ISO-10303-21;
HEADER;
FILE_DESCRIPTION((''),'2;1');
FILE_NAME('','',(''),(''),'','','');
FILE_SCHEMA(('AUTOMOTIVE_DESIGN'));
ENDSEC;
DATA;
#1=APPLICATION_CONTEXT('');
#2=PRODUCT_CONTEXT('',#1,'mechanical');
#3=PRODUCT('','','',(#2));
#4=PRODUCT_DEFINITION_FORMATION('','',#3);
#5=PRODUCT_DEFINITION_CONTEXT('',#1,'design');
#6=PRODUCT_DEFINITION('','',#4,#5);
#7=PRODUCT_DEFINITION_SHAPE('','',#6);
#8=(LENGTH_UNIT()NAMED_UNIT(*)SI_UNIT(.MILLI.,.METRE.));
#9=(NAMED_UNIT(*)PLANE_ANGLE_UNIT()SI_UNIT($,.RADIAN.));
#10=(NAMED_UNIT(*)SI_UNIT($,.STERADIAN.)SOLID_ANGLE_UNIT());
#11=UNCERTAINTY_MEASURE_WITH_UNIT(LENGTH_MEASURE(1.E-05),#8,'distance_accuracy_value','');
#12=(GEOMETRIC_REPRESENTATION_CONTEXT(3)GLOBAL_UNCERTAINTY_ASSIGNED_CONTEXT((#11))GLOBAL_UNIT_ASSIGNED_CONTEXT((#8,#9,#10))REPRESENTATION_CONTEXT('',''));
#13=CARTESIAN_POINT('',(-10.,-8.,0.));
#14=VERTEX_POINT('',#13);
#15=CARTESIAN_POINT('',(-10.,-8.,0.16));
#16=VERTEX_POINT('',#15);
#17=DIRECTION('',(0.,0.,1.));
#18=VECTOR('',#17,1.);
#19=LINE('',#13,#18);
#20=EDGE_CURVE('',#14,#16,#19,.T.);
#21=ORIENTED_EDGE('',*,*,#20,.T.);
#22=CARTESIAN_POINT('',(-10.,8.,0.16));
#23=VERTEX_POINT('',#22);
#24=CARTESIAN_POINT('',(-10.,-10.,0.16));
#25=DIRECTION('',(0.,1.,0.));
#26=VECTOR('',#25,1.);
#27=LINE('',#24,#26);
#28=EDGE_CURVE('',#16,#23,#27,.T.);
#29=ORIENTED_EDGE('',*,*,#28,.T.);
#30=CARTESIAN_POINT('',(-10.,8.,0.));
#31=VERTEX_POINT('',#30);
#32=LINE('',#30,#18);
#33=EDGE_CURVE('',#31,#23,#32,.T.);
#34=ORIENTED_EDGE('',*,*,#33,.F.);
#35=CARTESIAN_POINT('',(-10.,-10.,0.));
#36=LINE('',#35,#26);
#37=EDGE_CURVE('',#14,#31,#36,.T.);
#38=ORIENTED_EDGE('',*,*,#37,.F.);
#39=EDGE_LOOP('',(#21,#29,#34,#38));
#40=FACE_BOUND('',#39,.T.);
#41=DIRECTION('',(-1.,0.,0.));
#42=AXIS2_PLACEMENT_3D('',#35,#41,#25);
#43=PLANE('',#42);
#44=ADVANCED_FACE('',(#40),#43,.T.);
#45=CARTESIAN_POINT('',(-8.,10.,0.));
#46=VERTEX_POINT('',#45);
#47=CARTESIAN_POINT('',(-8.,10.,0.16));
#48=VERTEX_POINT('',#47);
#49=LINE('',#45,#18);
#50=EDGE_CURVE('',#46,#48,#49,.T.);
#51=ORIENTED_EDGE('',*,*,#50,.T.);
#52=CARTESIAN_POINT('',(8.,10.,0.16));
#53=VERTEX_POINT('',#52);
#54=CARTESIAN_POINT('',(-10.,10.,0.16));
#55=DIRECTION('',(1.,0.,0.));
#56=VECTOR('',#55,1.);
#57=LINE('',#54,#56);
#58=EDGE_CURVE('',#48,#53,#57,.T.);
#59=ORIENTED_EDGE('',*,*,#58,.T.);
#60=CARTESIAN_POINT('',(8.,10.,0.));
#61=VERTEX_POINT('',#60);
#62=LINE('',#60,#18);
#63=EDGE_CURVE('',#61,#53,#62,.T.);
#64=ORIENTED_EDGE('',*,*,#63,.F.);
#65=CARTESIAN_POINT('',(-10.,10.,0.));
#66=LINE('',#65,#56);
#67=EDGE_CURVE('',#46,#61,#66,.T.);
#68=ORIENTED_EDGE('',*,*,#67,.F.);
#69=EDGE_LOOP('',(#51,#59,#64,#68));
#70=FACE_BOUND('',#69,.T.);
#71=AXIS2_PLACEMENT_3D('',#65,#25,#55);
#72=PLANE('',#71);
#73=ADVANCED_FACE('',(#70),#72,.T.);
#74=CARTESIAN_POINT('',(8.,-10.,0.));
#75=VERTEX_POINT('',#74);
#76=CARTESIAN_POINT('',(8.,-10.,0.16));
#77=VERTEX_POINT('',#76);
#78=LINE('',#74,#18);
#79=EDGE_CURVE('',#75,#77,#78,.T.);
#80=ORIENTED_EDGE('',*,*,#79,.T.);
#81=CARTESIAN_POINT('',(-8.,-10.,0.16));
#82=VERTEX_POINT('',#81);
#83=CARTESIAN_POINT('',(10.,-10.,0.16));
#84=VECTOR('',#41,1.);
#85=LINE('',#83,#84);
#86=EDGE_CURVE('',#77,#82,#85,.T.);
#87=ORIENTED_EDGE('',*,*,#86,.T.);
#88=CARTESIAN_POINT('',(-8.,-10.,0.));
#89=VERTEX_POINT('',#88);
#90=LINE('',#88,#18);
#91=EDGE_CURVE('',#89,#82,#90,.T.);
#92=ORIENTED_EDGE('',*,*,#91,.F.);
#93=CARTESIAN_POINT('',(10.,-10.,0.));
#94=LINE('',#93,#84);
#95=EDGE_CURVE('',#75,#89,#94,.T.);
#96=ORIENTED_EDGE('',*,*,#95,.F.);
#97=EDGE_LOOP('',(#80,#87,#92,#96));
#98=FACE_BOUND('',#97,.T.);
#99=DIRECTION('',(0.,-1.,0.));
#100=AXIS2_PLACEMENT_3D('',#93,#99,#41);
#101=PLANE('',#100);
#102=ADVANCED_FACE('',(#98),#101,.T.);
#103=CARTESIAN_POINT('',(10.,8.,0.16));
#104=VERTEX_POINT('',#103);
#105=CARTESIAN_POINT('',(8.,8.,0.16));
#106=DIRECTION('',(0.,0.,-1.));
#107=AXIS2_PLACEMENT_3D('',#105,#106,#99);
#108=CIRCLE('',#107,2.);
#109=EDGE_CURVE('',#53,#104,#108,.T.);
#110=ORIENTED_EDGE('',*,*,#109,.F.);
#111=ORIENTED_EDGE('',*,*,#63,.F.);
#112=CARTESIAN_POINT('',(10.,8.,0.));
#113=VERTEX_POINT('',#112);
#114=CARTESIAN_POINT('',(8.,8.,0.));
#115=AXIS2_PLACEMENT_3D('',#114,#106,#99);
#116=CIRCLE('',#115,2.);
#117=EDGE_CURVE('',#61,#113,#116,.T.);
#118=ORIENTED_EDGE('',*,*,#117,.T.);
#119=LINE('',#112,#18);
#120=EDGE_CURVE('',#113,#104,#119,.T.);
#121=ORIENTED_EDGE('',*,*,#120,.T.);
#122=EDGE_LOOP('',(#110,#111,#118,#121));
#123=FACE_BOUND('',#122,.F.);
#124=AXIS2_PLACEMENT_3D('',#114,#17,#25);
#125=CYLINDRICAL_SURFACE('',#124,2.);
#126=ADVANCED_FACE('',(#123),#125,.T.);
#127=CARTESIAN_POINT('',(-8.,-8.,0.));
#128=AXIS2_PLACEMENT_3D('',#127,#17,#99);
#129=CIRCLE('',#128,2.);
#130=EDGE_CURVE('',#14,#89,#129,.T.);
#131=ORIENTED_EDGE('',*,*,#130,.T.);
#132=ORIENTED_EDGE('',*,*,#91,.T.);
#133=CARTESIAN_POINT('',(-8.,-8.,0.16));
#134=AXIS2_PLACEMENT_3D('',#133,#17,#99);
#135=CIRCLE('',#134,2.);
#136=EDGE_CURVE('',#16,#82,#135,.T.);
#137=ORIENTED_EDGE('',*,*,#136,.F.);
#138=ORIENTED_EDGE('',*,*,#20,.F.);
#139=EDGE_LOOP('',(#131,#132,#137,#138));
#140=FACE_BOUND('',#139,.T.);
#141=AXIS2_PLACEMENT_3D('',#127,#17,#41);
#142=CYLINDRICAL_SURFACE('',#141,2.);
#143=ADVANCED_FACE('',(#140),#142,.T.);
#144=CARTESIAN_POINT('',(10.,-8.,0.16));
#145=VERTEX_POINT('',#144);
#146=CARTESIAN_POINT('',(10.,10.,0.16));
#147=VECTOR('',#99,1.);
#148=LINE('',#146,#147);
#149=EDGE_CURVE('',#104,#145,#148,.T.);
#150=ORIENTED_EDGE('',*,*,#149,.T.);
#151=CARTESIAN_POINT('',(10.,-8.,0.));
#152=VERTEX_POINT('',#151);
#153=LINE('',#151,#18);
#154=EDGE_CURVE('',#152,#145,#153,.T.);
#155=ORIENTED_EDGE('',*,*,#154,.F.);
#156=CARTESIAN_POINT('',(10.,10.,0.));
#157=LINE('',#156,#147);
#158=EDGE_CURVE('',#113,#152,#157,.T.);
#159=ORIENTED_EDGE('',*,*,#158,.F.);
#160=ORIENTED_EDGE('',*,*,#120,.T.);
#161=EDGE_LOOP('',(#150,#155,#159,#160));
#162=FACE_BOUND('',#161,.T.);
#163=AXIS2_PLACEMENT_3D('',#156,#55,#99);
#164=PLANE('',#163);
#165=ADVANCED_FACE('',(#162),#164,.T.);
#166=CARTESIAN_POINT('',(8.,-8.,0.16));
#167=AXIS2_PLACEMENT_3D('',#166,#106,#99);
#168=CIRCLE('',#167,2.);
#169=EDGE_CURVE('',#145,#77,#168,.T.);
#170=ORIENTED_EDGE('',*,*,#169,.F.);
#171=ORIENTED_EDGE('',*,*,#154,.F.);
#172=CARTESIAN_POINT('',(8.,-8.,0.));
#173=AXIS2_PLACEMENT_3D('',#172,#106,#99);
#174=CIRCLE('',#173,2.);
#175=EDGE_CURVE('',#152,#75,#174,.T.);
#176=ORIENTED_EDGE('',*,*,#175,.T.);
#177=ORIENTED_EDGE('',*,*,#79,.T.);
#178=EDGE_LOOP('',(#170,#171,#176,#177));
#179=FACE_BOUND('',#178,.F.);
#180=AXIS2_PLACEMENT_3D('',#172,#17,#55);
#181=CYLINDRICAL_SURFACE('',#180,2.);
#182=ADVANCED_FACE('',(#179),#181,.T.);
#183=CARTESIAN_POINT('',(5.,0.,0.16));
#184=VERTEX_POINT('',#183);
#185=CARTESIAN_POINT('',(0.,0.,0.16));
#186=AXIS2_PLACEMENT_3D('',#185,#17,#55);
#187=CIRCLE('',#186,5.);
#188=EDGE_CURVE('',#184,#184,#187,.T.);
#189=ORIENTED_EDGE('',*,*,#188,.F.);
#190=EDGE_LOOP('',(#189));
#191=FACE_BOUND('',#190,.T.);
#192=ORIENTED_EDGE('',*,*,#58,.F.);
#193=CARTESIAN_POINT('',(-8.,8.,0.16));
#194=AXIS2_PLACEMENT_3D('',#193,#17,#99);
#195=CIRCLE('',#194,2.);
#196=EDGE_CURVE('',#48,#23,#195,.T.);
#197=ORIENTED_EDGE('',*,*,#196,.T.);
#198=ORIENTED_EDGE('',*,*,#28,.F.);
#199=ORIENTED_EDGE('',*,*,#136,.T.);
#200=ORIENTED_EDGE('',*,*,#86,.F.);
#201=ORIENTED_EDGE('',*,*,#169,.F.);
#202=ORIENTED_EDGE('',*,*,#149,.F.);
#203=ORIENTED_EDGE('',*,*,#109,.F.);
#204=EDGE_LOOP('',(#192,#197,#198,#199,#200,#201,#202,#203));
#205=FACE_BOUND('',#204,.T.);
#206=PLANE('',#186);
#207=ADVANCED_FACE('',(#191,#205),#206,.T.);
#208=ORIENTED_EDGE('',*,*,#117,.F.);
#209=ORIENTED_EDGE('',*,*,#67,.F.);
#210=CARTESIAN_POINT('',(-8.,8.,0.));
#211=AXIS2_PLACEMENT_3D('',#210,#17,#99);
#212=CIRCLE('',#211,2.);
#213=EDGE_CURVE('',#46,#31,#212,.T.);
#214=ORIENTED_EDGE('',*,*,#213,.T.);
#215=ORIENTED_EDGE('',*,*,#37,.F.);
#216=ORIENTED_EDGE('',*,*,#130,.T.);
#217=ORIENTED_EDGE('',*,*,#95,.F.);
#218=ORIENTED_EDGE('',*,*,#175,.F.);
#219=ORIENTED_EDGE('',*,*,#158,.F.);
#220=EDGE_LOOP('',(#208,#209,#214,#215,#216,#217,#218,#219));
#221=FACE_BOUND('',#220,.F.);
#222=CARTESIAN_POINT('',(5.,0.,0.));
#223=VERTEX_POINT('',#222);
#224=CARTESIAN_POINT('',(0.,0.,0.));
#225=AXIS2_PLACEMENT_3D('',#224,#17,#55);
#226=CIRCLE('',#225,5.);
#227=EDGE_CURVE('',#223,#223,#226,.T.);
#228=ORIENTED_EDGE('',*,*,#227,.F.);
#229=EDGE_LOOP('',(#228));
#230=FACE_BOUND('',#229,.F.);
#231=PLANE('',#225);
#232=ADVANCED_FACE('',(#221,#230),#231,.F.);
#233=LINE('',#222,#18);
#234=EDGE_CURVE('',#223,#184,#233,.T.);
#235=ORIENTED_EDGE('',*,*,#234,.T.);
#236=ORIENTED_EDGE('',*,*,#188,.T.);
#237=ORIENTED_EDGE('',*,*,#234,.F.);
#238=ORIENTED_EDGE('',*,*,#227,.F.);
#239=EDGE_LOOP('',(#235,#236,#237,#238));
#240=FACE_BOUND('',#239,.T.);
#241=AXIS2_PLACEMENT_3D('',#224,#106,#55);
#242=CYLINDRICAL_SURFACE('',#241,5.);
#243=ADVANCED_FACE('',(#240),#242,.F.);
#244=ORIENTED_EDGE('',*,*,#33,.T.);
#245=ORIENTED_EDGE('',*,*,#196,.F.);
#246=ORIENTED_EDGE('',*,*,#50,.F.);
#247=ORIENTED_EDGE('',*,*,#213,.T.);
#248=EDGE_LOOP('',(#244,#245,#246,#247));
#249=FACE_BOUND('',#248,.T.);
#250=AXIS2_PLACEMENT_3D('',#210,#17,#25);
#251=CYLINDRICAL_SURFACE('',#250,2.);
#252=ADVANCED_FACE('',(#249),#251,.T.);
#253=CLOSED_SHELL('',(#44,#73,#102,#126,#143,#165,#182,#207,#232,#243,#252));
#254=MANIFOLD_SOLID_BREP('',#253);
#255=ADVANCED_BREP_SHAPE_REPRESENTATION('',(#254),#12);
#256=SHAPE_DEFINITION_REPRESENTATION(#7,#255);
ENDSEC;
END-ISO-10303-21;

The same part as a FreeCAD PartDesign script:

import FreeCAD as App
import Part
import Sketcher
from FreeCAD import Vector


def edges_at(feature, points):
    """Names of the edges that pass closest to the given points."""
    edges = feature.Shape.Edges
    near = lambda p: min(range(len(edges)), key=lambda i: edges[i].distToShape(Part.Vertex(*p))[0])
    return sorted({f"Edge{near(p) + 1}" for p in points})


def add_polygon(sketch, points):
    """Adds a closed chain of lines whose ends are joined by coincident constraints."""
    first, n = sketch.GeometryCount, len(points)
    for a, b in zip(points, points[1:] + points[:1]):
        sketch.addGeometry(Part.LineSegment(App.Vector(*a, 0), App.Vector(*b, 0)), False)
    for i in range(n):
        sketch.addConstraint(Sketcher.Constraint("Coincident", first + i, 2, first + (i + 1) % n, 1))

doc = App.newDocument("Part")
body = doc.addObject("PartDesign::Body", "Body")

# Sketch on XY plane
sketch1 = body.newObject("Sketcher::SketchObject", "Sketch")
sketch1.AttachmentSupport = (doc.getObject("XY_Plane"), [""])
sketch1.MapMode = "FlatFace"
add_polygon(sketch1, [(10, 10), (-10, 10), (-10, -10), (10, -10)])  # lines 0-3
sketch1.addConstraint([
    Sketcher.Constraint("Horizontal", 0),
    Sketcher.Constraint("Vertical", 1),
    Sketcher.Constraint("Horizontal", 2),
    Sketcher.Constraint("Vertical", 3),
    Sketcher.Constraint("Symmetric", 0, 2, 2, 2, -1, 1),
    Sketcher.Constraint("Equal", 2, 1),
    Sketcher.Constraint("DistanceX", 0, 2, 0, 1, 20.0),
])
pad1 = body.newObject("PartDesign::Pad", "Pad")
pad1.Profile = sketch1
pad1.Length = 0.16

# Sketch on XY plane
sketch2 = body.newObject("Sketcher::SketchObject", "Sketch001")
sketch2.AttachmentSupport = (doc.getObject("XY_Plane"), [""])
sketch2.MapMode = "FlatFace"
sketch2.addGeometry(Part.Circle(Vector(0, 0, 0), Vector(0, 0, 1), 5), False)
sketch2.addConstraint([
    Sketcher.Constraint("Coincident", 0, 3, -1, 1),
    Sketcher.Constraint("Diameter", 0, 10.0),
])
pocket1 = body.newObject("PartDesign::Pocket", "Pocket")
pocket1.Profile = sketch2
pocket1.Length = 0.16
pocket1.Reversed = True
doc.recompute()

fillet = body.newObject("PartDesign::Fillet", "Fillet")
fillet.Base = (pocket1, edges_at(pocket1, [
    (10, 10, 0.08),
    (-10, 10, 0.08),
    (10, -10, 0.08),
    (-10, -10, 0.08),
]))
fillet.Radius = 2

doc.recompute()
